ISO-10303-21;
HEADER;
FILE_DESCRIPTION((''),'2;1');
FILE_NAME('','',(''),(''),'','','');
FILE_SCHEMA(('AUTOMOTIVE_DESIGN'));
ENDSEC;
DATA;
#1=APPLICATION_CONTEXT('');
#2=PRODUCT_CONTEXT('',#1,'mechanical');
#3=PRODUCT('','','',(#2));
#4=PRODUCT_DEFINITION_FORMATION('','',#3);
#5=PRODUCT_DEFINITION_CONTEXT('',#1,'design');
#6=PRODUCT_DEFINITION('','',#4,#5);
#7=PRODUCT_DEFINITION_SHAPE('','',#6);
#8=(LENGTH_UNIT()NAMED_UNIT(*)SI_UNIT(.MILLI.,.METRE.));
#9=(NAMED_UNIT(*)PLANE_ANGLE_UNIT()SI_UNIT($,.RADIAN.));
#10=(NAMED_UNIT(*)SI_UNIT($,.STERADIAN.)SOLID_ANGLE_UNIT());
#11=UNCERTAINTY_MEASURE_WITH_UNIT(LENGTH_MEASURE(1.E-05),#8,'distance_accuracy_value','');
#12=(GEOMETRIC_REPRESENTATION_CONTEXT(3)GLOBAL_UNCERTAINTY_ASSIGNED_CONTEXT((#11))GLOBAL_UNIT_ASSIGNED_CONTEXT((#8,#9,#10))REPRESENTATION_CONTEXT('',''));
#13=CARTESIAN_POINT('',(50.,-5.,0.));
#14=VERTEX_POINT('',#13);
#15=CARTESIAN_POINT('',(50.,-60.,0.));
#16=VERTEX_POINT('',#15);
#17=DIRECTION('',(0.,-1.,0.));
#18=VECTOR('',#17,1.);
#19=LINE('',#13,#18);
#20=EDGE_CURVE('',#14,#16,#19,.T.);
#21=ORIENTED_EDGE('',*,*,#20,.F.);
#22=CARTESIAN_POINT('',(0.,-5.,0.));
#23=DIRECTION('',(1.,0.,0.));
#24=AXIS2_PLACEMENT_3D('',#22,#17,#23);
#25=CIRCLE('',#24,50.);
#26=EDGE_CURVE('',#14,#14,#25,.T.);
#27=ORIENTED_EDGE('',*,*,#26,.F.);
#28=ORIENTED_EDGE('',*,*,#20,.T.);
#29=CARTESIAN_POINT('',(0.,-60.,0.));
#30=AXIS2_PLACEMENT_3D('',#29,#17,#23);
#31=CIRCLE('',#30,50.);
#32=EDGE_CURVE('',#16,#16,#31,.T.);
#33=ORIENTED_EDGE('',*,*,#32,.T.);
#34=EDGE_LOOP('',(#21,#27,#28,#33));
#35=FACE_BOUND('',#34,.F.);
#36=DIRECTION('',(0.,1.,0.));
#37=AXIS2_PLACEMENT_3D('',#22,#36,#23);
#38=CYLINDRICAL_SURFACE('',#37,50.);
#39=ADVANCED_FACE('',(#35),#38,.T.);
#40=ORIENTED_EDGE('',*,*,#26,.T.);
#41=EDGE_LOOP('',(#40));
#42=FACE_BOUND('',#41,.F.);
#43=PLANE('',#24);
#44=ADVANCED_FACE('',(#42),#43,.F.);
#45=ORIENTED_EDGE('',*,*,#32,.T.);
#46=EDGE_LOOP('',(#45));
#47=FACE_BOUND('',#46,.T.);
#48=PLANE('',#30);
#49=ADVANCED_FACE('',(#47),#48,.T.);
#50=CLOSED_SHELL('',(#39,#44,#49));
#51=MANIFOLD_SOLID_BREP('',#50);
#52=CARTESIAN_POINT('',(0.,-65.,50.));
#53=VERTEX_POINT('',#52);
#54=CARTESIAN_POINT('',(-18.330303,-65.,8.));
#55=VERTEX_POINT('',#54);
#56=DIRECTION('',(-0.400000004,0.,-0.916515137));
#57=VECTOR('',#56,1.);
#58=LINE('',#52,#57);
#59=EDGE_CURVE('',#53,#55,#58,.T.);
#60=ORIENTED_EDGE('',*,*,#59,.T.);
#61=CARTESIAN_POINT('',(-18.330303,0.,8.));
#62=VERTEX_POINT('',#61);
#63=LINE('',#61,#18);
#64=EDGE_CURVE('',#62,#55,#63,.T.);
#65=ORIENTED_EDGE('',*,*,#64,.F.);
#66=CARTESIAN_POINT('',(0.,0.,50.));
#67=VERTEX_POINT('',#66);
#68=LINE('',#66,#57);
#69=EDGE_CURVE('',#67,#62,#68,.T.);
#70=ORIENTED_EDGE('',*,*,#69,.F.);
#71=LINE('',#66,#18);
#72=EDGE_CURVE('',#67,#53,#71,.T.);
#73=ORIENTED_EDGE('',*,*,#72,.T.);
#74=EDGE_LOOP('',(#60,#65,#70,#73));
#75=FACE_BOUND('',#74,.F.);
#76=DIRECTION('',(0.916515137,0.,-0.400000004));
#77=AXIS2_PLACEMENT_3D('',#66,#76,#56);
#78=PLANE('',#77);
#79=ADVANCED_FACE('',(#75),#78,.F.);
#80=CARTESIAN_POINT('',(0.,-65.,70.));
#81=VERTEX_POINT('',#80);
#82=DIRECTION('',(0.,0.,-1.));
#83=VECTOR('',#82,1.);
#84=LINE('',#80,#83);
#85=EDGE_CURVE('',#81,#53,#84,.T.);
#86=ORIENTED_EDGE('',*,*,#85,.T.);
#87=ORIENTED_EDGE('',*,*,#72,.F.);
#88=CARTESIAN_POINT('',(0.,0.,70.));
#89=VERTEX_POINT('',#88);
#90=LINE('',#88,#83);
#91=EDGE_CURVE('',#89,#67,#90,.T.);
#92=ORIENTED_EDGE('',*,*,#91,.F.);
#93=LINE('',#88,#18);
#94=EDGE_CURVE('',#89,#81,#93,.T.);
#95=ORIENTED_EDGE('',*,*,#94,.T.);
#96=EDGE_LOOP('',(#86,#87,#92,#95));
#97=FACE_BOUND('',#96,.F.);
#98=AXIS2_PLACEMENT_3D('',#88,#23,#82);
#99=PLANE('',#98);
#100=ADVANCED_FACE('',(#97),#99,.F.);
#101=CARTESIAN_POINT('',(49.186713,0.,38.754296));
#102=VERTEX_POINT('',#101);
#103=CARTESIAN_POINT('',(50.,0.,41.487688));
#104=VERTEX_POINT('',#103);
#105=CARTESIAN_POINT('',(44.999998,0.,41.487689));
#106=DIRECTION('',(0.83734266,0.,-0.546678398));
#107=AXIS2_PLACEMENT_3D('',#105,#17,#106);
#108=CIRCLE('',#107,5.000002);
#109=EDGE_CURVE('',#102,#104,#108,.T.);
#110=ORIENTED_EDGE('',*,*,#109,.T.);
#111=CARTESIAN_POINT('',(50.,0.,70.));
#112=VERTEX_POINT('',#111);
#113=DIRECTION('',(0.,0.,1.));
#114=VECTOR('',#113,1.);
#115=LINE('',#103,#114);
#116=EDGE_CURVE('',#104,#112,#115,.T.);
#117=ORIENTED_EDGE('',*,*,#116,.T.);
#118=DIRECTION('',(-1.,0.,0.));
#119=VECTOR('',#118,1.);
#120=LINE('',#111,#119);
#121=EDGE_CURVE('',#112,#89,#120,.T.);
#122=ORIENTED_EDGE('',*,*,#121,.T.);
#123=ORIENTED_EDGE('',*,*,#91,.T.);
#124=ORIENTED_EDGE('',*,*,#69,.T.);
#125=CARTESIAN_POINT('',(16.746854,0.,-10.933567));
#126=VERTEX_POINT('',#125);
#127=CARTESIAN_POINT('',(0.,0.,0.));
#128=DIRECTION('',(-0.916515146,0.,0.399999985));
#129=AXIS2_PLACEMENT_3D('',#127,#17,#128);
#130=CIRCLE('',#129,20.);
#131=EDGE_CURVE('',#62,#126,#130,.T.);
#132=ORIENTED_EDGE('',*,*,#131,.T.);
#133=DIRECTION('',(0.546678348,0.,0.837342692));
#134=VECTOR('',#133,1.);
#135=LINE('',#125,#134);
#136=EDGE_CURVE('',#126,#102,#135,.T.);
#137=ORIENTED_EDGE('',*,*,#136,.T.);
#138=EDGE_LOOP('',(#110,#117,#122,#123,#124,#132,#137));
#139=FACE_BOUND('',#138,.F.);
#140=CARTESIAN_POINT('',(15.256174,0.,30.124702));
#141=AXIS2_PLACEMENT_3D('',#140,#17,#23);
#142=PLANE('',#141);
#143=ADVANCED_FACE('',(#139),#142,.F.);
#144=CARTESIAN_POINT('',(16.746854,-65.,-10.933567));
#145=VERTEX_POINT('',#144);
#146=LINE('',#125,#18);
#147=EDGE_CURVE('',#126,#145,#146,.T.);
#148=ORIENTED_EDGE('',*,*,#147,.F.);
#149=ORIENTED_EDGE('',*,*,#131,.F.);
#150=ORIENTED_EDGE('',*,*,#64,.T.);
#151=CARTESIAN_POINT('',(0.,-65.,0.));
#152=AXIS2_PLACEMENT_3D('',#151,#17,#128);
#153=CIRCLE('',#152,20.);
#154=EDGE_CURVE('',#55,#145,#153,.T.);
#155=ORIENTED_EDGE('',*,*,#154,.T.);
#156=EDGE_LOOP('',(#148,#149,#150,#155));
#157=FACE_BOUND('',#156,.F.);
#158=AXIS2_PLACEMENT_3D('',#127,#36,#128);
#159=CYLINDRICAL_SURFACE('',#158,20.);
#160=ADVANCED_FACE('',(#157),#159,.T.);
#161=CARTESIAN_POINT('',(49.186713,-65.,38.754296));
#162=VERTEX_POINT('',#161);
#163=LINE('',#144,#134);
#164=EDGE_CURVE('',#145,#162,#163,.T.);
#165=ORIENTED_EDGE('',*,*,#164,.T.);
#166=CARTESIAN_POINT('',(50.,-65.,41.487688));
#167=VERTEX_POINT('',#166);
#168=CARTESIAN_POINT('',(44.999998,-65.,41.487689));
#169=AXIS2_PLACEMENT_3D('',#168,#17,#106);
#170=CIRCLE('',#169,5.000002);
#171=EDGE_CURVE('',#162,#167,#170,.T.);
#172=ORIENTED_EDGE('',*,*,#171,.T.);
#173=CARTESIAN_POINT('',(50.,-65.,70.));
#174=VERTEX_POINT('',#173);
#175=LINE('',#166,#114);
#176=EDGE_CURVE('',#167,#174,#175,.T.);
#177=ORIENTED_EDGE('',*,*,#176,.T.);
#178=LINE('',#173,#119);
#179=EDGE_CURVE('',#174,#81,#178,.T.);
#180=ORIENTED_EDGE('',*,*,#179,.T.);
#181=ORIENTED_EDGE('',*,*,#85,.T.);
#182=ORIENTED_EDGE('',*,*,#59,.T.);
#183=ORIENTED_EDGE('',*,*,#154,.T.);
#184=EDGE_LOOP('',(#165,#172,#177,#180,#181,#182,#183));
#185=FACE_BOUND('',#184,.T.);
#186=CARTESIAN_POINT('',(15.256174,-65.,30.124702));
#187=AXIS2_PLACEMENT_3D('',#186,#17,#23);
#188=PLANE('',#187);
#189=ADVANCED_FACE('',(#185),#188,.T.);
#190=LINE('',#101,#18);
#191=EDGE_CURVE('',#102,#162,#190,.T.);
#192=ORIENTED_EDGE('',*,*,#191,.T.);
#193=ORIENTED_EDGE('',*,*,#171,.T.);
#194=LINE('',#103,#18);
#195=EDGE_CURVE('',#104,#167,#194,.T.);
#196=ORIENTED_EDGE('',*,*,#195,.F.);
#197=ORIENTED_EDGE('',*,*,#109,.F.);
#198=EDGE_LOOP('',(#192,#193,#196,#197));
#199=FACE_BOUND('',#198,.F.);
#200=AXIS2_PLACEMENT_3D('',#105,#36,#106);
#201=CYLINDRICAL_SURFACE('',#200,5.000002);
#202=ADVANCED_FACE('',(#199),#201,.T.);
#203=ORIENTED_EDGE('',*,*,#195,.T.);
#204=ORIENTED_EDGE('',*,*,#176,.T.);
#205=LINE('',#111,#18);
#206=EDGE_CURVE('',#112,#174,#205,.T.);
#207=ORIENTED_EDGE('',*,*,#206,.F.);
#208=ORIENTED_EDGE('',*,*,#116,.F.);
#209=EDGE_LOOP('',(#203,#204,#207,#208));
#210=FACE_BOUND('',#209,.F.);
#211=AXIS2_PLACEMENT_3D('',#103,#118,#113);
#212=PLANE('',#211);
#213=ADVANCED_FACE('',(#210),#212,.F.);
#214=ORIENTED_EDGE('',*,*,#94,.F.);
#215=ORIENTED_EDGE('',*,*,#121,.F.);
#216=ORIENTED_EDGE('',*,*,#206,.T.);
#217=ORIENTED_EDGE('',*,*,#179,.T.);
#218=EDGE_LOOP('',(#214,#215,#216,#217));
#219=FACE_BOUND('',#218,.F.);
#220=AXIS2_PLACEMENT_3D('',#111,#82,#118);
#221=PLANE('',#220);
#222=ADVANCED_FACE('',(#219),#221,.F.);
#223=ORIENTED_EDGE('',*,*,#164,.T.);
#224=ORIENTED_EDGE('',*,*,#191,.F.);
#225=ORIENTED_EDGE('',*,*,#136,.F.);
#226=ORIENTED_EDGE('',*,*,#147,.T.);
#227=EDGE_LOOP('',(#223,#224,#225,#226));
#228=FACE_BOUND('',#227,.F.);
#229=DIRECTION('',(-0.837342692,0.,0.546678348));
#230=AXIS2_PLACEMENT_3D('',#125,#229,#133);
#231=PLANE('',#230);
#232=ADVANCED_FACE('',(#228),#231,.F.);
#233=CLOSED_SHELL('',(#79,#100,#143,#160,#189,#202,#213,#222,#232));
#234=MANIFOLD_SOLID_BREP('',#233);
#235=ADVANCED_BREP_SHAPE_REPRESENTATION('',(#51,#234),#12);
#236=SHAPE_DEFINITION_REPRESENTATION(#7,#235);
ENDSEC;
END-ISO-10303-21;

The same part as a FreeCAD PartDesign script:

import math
import FreeCAD as App
import Part
import Sketcher
from FreeCAD import Vector
Q = App.Units.Quantity

doc = App.newDocument("Part")
body = doc.addObject("PartDesign::Body", "Body")

sketch1 = doc.addObject("Sketcher::SketchObject", "Sketch")
body.addObject(sketch1)
sketch1.AttachmentSupport = (doc.XZ_Plane, [""])
sketch1.MapMode = "FlatFace"
sketch1.addGeometry([
    Part.LineSegment(Vector(0, 50, 0), Vector(-18.3, 8, 0)),
    Part.ArcOfCircle(Part.Circle(Vector(0, 0, 0), Vector(0, 0, 1), 20), math.radians(156), math.radians(327)),
    Part.LineSegment(Vector(16.7, -10.9, 0), Vector(49.2, 38.8, 0)),
    Part.ArcOfCircle(Part.Circle(Vector(45, 41.5, 0), Vector(0, 0, 1), 5), math.radians(-33), math.radians(0)),
    Part.LineSegment(Vector(50, 41.5, 0), Vector(50, 70, 0)),
    Part.LineSegment(Vector(50, 70, 0), Vector(0, 70, 0)),
    Part.LineSegment(Vector(0, 70, 0), Vector(0, 50, 0)),
], False)
sketch1.addConstraint([
    Sketcher.Constraint("Tangent", 0, 2, 1, 1),
    Sketcher.Constraint("Tangent", 1, 2, 2, 1),
    Sketcher.Constraint("Tangent", 2, 2, 3, 1),
    Sketcher.Constraint("Tangent", 3, 2, 4, 1),
    Sketcher.Constraint("Coincident", 4, 2, 5, 1),
    Sketcher.Constraint("Coincident", 5, 2, 6, 1),
    Sketcher.Constraint("Coincident", 6, 2, 0, 1),
    Sketcher.Constraint("Vertical", 4),
    Sketcher.Constraint("Horizontal", 5),
    Sketcher.Constraint("Vertical", 6),
    Sketcher.Constraint("Coincident", 1, 3, -1, 1),
    Sketcher.Constraint("PointOnObject", 5, 2, -2),
    Sketcher.Constraint("Radius", 1, Q("20 mm")),
    Sketcher.Constraint("Radius", 3, Q("5.000002 mm")),
    Sketcher.Constraint("DistanceX", 5, 2, 5, 1, Q("50 mm")),
    Sketcher.Constraint("DistanceY", 6, 2, 6, 1, Q("20 mm")),
    Sketcher.Constraint("DistanceY", -1, 1, 0, 2, Q("8 mm")),
    Sketcher.Constraint("DistanceY", 4, 1, 4, 2, Q("28.512312 mm")),
])
pad1 = doc.addObject("PartDesign::Pad", "Pad")
body.addObject(pad1)
pad1.Profile = sketch1
pad1.Length = 65
body2 = doc.addObject("PartDesign::Body", "Body001")

sketch2 = doc.addObject("Sketcher::SketchObject", "Sketch001")
body2.addObject(sketch2)
sketch2.AttachmentSupport = (doc.getObject("XZ_Plane001"), [""])
sketch2.MapMode = "FlatFace"
sketch2.addGeometry(Part.Circle(Vector(0, 0, 0), Vector(0, 0, 1), 50), False)
sketch2.addConstraint([
    Sketcher.Constraint("Coincident", 0, 3, -1, 1),
    Sketcher.Constraint("Diameter", 0, Q("100 mm")),
])
pad2 = doc.addObject("PartDesign::Pad", "Pad001")
body2.addObject(pad2)
pad2.Profile = sketch2
pad2.Length = 55
body3 = doc.addObject("PartDesign::Body", "Body002")
doc.recompute()

body2.Placement = App.Placement(Vector(0, -5, 0), App.Rotation(Vector(0, 0, 1), 0))
boolean = doc.addObject("PartDesign::Boolean", "Boolean")
body3.addObject(boolean)
boolean.Type = "Fuse"
boolean.addObjects([body2])

doc.recompute()
